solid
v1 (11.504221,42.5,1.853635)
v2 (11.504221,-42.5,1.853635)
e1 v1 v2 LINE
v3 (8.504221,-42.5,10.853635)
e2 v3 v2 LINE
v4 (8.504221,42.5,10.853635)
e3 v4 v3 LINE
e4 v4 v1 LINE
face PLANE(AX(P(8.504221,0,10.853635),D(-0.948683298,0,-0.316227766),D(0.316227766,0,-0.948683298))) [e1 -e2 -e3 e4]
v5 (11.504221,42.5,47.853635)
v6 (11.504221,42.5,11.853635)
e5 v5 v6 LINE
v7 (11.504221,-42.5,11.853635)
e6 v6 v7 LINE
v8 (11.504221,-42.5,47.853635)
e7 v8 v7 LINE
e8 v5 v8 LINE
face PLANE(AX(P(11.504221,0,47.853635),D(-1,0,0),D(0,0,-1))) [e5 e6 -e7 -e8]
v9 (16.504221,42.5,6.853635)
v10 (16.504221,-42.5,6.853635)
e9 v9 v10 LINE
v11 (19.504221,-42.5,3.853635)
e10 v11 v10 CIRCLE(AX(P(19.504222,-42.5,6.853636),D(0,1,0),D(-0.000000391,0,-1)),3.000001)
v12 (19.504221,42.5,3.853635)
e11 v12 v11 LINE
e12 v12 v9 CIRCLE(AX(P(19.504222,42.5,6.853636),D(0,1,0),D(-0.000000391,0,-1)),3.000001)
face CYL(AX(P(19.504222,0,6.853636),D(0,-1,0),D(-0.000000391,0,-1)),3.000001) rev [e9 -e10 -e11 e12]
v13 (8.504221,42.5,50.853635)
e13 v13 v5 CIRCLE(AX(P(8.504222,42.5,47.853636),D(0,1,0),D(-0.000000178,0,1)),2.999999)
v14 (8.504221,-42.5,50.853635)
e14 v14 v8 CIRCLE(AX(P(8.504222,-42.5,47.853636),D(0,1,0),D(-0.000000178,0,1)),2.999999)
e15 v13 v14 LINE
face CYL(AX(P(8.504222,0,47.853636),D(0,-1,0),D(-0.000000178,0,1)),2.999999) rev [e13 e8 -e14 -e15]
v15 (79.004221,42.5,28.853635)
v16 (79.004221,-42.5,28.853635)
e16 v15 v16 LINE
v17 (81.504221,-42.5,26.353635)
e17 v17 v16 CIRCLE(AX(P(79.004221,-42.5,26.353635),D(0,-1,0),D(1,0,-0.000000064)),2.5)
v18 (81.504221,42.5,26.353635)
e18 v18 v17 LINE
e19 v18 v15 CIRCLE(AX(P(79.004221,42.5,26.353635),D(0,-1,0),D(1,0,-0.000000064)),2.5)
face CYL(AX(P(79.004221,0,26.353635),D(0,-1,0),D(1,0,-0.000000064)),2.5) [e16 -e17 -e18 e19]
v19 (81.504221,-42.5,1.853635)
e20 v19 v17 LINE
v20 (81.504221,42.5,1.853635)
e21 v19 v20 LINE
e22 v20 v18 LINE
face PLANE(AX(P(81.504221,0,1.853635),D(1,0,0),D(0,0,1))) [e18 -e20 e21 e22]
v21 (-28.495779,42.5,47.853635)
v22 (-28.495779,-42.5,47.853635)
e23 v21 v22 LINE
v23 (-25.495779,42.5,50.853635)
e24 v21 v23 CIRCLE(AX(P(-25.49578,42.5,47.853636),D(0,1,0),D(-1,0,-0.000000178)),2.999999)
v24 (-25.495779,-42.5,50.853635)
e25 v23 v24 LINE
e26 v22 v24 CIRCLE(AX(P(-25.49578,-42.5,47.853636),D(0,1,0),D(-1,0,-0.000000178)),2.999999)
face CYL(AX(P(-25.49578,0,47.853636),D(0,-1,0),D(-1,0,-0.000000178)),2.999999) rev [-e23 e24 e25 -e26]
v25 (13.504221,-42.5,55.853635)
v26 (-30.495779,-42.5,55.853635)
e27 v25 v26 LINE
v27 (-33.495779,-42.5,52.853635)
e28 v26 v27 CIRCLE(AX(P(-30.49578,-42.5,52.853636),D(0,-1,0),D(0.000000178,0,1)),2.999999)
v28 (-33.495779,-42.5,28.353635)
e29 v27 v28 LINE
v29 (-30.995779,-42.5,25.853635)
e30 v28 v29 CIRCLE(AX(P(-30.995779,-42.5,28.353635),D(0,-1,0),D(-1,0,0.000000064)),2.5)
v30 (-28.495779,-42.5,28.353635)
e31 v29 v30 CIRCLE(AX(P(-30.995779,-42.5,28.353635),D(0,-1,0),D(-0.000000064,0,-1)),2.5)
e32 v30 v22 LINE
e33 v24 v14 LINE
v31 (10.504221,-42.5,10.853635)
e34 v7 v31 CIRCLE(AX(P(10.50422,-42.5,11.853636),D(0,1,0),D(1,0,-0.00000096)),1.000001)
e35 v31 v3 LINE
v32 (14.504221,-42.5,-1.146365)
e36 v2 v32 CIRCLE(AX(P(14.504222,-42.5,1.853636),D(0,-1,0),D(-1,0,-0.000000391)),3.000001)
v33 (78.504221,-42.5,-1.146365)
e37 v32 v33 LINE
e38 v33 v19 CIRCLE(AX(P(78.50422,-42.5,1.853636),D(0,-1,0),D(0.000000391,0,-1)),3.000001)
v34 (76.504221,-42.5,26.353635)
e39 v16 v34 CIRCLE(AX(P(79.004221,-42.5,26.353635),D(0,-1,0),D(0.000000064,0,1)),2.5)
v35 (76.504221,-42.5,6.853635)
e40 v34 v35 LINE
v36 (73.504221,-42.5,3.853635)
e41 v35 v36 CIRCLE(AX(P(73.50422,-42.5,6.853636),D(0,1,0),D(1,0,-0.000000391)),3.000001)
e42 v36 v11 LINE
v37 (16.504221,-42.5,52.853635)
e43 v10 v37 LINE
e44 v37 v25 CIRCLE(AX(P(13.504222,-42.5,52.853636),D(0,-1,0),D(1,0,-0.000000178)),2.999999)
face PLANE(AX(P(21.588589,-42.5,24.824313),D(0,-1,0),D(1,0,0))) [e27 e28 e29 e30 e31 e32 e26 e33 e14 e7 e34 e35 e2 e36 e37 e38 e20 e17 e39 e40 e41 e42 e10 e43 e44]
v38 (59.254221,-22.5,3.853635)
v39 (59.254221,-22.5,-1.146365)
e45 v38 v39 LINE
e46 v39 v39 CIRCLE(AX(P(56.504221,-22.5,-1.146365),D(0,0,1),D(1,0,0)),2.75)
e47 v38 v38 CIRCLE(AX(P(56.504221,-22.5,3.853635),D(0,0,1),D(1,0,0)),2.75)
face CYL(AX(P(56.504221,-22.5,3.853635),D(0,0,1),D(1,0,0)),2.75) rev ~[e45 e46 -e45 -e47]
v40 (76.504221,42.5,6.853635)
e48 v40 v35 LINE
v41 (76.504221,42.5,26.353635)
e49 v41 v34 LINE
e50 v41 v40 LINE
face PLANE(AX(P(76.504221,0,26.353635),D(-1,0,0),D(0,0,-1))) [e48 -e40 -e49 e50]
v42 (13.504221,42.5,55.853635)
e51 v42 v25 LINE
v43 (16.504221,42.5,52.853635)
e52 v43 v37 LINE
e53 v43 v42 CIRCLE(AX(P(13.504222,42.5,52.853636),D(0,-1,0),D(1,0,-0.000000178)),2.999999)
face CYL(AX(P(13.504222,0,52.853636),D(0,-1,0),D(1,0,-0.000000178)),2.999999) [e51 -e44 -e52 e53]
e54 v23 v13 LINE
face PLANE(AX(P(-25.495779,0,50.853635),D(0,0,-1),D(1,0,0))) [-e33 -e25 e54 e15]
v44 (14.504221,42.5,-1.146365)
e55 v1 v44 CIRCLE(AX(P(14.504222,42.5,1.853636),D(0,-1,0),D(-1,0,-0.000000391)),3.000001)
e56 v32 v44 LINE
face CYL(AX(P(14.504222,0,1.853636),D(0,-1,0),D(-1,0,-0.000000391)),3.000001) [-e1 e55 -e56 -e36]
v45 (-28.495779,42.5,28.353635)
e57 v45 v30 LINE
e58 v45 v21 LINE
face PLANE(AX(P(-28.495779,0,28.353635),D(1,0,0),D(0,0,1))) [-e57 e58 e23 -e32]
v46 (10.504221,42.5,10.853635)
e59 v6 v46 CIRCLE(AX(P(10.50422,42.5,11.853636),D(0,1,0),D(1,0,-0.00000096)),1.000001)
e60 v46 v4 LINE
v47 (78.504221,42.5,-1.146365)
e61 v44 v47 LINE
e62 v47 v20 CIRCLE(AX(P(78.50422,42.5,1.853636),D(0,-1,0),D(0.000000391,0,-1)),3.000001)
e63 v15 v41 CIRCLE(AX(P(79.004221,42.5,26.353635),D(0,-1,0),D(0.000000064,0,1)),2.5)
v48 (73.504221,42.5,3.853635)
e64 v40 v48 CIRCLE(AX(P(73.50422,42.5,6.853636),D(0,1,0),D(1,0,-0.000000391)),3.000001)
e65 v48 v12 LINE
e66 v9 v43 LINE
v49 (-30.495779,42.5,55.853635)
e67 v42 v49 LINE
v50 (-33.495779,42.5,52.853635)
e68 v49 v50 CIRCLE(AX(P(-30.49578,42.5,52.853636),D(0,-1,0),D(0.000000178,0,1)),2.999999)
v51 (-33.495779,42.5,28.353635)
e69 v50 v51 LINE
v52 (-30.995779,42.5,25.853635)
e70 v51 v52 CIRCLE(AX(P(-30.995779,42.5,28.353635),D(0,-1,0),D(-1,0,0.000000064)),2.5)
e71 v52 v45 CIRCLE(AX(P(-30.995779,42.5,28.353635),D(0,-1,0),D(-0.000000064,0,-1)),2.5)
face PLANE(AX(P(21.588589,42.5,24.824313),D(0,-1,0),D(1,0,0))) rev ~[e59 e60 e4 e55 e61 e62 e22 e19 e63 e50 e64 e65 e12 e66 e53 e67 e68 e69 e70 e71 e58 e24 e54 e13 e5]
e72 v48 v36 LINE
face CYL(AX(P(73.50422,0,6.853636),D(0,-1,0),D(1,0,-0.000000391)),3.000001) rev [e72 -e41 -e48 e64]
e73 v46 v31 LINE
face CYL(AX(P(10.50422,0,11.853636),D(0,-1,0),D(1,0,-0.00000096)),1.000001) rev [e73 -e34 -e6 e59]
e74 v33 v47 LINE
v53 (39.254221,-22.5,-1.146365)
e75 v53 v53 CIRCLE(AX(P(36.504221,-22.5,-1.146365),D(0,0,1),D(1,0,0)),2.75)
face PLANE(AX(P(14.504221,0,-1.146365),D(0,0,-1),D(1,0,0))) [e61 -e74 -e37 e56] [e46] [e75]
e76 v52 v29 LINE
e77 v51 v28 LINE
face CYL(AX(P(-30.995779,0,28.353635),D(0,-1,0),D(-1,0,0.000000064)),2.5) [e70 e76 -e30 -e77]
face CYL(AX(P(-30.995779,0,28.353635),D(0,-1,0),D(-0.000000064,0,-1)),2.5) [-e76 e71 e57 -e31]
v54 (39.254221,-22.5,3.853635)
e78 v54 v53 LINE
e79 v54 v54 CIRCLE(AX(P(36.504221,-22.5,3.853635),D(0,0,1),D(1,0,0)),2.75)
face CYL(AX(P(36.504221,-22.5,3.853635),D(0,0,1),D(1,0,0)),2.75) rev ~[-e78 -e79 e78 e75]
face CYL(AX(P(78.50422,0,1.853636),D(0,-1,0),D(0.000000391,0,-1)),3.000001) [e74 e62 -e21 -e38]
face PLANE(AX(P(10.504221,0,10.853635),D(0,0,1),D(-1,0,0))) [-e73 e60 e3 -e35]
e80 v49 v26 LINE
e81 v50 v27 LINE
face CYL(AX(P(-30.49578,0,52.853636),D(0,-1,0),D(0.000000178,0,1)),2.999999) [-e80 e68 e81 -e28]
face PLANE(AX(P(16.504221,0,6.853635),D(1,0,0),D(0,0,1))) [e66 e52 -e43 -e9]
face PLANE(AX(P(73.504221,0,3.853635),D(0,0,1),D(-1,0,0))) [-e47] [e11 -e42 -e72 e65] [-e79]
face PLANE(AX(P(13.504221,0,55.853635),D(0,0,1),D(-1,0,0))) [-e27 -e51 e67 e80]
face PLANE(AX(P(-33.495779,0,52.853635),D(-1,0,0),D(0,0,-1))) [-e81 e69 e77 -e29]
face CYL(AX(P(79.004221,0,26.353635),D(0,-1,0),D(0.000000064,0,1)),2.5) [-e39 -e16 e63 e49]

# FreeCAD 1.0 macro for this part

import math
import FreeCAD as App
import Part
import Sketcher
from FreeCAD import Vector

doc = App.newDocument("Part")
body = doc.addObject("PartDesign::Body", "Body")

# Sketch on XZ plane
sketch1 = body.newObject("Sketcher::SketchObject", "Sketch")
sketch1.AttachmentSupport = (doc.getObject("XZ_Plane"), [""])
sketch1.MapMode = "FlatFace"
sketch1.addGeometry([
    Part.LineSegment(Vector(81.504221, 1.853635, 0), Vector(81.504221, 26.353635, 0)),  # 0
    Part.ArcOfCircle(Part.Circle(Vector(79.004221, 26.353635, 0), Vector(0, 0, 1), 2.5), math.radians(-0.000004), math.radians(90.000004)),  # 1
    Part.ArcOfCircle(Part.Circle(Vector(79.004221, 26.353635, 0), Vector(0, 0, 1), 2.5), math.radians(89.999996), math.radians(180.000004)),  # 2
    Part.LineSegment(Vector(76.504221, 26.353635, 0), Vector(76.504221, 6.853635, 0)),  # 3
    Part.ArcOfCircle(Part.Circle(Vector(73.50422, 6.853636, 0), Vector(0, 0, 1), 3.000001), math.radians(-89.999978), math.radians(-0.000022)),  # 4
    Part.LineSegment(Vector(73.504221, 3.853635, 0), Vector(19.504221, 3.853635, 0)),  # 5
    Part.ArcOfCircle(Part.Circle(Vector(19.504222, 6.853636, 0), Vector(0, 0, 1), 3.000001), math.radians(-179.999978), math.radians(-90.000022)),  # 6
    Part.LineSegment(Vector(16.504221, 6.853635, 0), Vector(16.504221, 52.853635, 0)),  # 7
    Part.ArcOfCircle(Part.Circle(Vector(13.504222, 52.853636, 0), Vector(0, 0, 1), 2.999999), math.radians(-0.00001), math.radians(90.00001)),  # 8
    Part.LineSegment(Vector(13.504221, 55.853635, 0), Vector(-30.495779, 55.853635, 0)),  # 9
    Part.ArcOfCircle(Part.Circle(Vector(-30.49578, 52.853636, 0), Vector(0, 0, 1), 2.999999), math.radians(89.99999), math.radians(180.00001)),  # 10
    Part.LineSegment(Vector(-33.495779, 52.853635, 0), Vector(-33.495779, 28.353635, 0)),  # 11
    Part.ArcOfCircle(Part.Circle(Vector(-30.995779, 28.353635, 0), Vector(0, 0, 1), 2.5), math.radians(179.999996), math.radians(270.000004)),  # 12
    Part.ArcOfCircle(Part.Circle(Vector(-30.995779, 28.353635, 0), Vector(0, 0, 1), 2.5), math.radians(-90.000004), math.radians(0.000004)),  # 13
    Part.LineSegment(Vector(-28.495779, 28.353635, 0), Vector(-28.495779, 47.853635, 0)),  # 14
    Part.ArcOfCircle(Part.Circle(Vector(-25.49578, 47.853636, 0), Vector(0, 0, 1), 2.999999), math.radians(89.99999), math.radians(180.00001)),  # 15
    Part.LineSegment(Vector(-25.495779, 50.853635, 0), Vector(8.504221, 50.853635, 0)),  # 16
    Part.ArcOfCircle(Part.Circle(Vector(8.504222, 47.853636, 0), Vector(0, 0, 1), 2.999999), math.radians(-0.00001), math.radians(90.00001)),  # 17
    Part.LineSegment(Vector(11.504221, 47.853635, 0), Vector(11.504221, 11.853635, 0)),  # 18
    Part.ArcOfCircle(Part.Circle(Vector(10.50422, 11.853636, 0), Vector(0, 0, 1), 1.000001), math.radians(-89.999945), math.radians(-0.000055)),  # 19
    Part.LineSegment(Vector(10.504221, 10.853635, 0), Vector(8.504221, 10.853635, 0)),  # 20
    Part.LineSegment(Vector(8.504221, 10.853635, 0), Vector(11.504221, 1.853635, 0)),  # 21
    Part.ArcOfCircle(Part.Circle(Vector(14.504222, 1.853636, 0), Vector(0, 0, 1), 3.000001), math.radians(-179.999978), math.radians(-90.000022)),  # 22
    Part.LineSegment(Vector(14.504221, -1.146365, 0), Vector(78.504221, -1.146365, 0)),  # 23
    Part.ArcOfCircle(Part.Circle(Vector(78.50422, 1.853636, 0), Vector(0, 0, 1), 3.000001), math.radians(-89.999978), math.radians(-0.000022)),  # 24
], False)
sketch1.addConstraint([
    Sketcher.Constraint("Tangent", 0, 2, 1, 1),
    Sketcher.Constraint("Tangent", 1, 2, 2, 1),
    Sketcher.Constraint("Tangent", 2, 2, 3, 1),
    Sketcher.Constraint("Tangent", 3, 2, 4, 2),
    Sketcher.Constraint("Tangent", 4, 1, 5, 1),
    Sketcher.Constraint("Tangent", 5, 2, 6, 2),
    Sketcher.Constraint("Tangent", 6, 1, 7, 1),
    Sketcher.Constraint("Tangent", 7, 2, 8, 1),
    Sketcher.Constraint("Tangent", 8, 2, 9, 1),
    Sketcher.Constraint("Tangent", 9, 2, 10, 1),
    Sketcher.Constraint("Tangent", 10, 2, 11, 1),
    Sketcher.Constraint("Tangent", 11, 2, 12, 1),
    Sketcher.Constraint("Tangent", 12, 2, 13, 1),
    Sketcher.Constraint("Tangent", 13, 2, 14, 1),
    Sketcher.Constraint("Tangent", 14, 2, 15, 2),
    Sketcher.Constraint("Tangent", 15, 1, 16, 1),
    Sketcher.Constraint("Tangent", 16, 2, 17, 2),
    Sketcher.Constraint("Tangent", 17, 1, 18, 1),
    Sketcher.Constraint("Tangent", 18, 2, 19, 2),
    Sketcher.Constraint("Tangent", 19, 1, 20, 1),
    Sketcher.Constraint("Coincident", 20, 2, 21, 1),
    Sketcher.Constraint("Coincident", 21, 2, 22, 1),
    Sketcher.Constraint("Tangent", 22, 2, 23, 1),
    Sketcher.Constraint("Tangent", 23, 2, 24, 1),
    Sketcher.Constraint("Tangent", 24, 2, 0, 1),
    Sketcher.Constraint("Vertical", 0),
    Sketcher.Constraint("Vertical", 3),
    Sketcher.Constraint("Horizontal", 5),
    Sketcher.Constraint("Vertical", 7),
    Sketcher.Constraint("Horizontal", 9),
    Sketcher.Constraint("Vertical", 11),
    Sketcher.Constraint("Vertical", 14),
    Sketcher.Constraint("Horizontal", 16),
    Sketcher.Constraint("Vertical", 18),
    Sketcher.Constraint("Horizontal", 20),
    Sketcher.Constraint("Horizontal", 23),
    Sketcher.Constraint("Equal", 1, 2),
    Sketcher.Constraint("Equal", 4, 6),
    Sketcher.Constraint("Equal", 6, 8),
    Sketcher.Constraint("Equal", 8, 10),
    Sketcher.Constraint("Equal", 2, 12),
    Sketcher.Constraint("Equal", 12, 13),
    Sketcher.Constraint("Equal", 10, 15),
    Sketcher.Constraint("Equal", 15, 17),
    Sketcher.Constraint("Equal", 17, 22),
    Sketcher.Constraint("Equal", 22, 24),
    Sketcher.Constraint("Horizontal", 24, 3, 21, 2),
    Sketcher.Constraint("Vertical", 2, 3, 1, 2),
    Sketcher.Constraint("Vertical", 13, 3, 12, 2),
    Sketcher.Constraint("Vertical", 16, 2, 20, 2),
    Sketcher.Constraint("Vertical", 18, 2, 21, 2),
    Sketcher.Constraint("Equal", 0, 11),
    Sketcher.Constraint("Equal", 3, 14),
    Sketcher.Constraint("Radius", 4, 3.000001),
    Sketcher.Constraint("Radius", 19, 1.000001),
    Sketcher.Constraint("Radius", 1, 2.5),
    Sketcher.Constraint("DistanceX", 5, 2, 5, 1, 54.0),
    Sketcher.Constraint("DistanceX", 9, 2, 9, 1, 44.0),
    Sketcher.Constraint("DistanceX", 16, 1, 16, 2, 34.0),
    Sketcher.Constraint("DistanceY", 7, 1, 7, 2, 46.0),
    Sketcher.Constraint("DistanceY", 18, 2, 18, 1, 36.0),
    Sketcher.Constraint("DistanceY", 0, 1, 0, 2, 24.5),
    Sketcher.Constraint("DistanceY", 3, 2, 3, 1, 19.5),
    Sketcher.Constraint("DistanceX", -1, 1, 1, 3, 79.004221),
    Sketcher.Constraint("DistanceY", -1, 1, 1, 3, 26.353635),
])
pad1 = body.newObject("PartDesign::Pad", "Pad")
pad1.Profile = sketch1
pad1.Length = 85
pad1.Midplane = True

# Sketch on XY plane
sketch2 = body.newObject("Sketcher::SketchObject", "Sketch001")
sketch2.AttachmentSupport = (doc.getObject("XY_Plane"), [""])
sketch2.MapMode = "FlatFace"
sketch2.AttachmentOffset = App.Placement(Vector(0, 0, 3.853635), App.Rotation())
sketch2.addGeometry([
    Part.Circle(Vector(36.504221, -22.5, 0), Vector(0, 0, 1), 2.75),
    Part.Circle(Vector(56.504221, -22.5, 0), Vector(0, 0, 1), 2.75),
], False)
sketch2.addConstraint([
    Sketcher.Constraint("Equal", 0, 1),
    Sketcher.Constraint("Horizontal", 0, 3, 1, 3),
    Sketcher.Constraint("Diameter", 0, 5.5),
    Sketcher.Constraint("DistanceX", 0, 3, 1, 3, 20.0),
    Sketcher.Constraint("DistanceY", 0, 3, -1, 1, 22.5),
    Sketcher.Constraint("DistanceX", -1, 1, 0, 3, 36.504221),
])
pocket1 = body.newObject("PartDesign::Pocket", "Pocket")
pocket1.Profile = sketch2
pocket1.Type = "ThroughAll"

doc.recompute()
